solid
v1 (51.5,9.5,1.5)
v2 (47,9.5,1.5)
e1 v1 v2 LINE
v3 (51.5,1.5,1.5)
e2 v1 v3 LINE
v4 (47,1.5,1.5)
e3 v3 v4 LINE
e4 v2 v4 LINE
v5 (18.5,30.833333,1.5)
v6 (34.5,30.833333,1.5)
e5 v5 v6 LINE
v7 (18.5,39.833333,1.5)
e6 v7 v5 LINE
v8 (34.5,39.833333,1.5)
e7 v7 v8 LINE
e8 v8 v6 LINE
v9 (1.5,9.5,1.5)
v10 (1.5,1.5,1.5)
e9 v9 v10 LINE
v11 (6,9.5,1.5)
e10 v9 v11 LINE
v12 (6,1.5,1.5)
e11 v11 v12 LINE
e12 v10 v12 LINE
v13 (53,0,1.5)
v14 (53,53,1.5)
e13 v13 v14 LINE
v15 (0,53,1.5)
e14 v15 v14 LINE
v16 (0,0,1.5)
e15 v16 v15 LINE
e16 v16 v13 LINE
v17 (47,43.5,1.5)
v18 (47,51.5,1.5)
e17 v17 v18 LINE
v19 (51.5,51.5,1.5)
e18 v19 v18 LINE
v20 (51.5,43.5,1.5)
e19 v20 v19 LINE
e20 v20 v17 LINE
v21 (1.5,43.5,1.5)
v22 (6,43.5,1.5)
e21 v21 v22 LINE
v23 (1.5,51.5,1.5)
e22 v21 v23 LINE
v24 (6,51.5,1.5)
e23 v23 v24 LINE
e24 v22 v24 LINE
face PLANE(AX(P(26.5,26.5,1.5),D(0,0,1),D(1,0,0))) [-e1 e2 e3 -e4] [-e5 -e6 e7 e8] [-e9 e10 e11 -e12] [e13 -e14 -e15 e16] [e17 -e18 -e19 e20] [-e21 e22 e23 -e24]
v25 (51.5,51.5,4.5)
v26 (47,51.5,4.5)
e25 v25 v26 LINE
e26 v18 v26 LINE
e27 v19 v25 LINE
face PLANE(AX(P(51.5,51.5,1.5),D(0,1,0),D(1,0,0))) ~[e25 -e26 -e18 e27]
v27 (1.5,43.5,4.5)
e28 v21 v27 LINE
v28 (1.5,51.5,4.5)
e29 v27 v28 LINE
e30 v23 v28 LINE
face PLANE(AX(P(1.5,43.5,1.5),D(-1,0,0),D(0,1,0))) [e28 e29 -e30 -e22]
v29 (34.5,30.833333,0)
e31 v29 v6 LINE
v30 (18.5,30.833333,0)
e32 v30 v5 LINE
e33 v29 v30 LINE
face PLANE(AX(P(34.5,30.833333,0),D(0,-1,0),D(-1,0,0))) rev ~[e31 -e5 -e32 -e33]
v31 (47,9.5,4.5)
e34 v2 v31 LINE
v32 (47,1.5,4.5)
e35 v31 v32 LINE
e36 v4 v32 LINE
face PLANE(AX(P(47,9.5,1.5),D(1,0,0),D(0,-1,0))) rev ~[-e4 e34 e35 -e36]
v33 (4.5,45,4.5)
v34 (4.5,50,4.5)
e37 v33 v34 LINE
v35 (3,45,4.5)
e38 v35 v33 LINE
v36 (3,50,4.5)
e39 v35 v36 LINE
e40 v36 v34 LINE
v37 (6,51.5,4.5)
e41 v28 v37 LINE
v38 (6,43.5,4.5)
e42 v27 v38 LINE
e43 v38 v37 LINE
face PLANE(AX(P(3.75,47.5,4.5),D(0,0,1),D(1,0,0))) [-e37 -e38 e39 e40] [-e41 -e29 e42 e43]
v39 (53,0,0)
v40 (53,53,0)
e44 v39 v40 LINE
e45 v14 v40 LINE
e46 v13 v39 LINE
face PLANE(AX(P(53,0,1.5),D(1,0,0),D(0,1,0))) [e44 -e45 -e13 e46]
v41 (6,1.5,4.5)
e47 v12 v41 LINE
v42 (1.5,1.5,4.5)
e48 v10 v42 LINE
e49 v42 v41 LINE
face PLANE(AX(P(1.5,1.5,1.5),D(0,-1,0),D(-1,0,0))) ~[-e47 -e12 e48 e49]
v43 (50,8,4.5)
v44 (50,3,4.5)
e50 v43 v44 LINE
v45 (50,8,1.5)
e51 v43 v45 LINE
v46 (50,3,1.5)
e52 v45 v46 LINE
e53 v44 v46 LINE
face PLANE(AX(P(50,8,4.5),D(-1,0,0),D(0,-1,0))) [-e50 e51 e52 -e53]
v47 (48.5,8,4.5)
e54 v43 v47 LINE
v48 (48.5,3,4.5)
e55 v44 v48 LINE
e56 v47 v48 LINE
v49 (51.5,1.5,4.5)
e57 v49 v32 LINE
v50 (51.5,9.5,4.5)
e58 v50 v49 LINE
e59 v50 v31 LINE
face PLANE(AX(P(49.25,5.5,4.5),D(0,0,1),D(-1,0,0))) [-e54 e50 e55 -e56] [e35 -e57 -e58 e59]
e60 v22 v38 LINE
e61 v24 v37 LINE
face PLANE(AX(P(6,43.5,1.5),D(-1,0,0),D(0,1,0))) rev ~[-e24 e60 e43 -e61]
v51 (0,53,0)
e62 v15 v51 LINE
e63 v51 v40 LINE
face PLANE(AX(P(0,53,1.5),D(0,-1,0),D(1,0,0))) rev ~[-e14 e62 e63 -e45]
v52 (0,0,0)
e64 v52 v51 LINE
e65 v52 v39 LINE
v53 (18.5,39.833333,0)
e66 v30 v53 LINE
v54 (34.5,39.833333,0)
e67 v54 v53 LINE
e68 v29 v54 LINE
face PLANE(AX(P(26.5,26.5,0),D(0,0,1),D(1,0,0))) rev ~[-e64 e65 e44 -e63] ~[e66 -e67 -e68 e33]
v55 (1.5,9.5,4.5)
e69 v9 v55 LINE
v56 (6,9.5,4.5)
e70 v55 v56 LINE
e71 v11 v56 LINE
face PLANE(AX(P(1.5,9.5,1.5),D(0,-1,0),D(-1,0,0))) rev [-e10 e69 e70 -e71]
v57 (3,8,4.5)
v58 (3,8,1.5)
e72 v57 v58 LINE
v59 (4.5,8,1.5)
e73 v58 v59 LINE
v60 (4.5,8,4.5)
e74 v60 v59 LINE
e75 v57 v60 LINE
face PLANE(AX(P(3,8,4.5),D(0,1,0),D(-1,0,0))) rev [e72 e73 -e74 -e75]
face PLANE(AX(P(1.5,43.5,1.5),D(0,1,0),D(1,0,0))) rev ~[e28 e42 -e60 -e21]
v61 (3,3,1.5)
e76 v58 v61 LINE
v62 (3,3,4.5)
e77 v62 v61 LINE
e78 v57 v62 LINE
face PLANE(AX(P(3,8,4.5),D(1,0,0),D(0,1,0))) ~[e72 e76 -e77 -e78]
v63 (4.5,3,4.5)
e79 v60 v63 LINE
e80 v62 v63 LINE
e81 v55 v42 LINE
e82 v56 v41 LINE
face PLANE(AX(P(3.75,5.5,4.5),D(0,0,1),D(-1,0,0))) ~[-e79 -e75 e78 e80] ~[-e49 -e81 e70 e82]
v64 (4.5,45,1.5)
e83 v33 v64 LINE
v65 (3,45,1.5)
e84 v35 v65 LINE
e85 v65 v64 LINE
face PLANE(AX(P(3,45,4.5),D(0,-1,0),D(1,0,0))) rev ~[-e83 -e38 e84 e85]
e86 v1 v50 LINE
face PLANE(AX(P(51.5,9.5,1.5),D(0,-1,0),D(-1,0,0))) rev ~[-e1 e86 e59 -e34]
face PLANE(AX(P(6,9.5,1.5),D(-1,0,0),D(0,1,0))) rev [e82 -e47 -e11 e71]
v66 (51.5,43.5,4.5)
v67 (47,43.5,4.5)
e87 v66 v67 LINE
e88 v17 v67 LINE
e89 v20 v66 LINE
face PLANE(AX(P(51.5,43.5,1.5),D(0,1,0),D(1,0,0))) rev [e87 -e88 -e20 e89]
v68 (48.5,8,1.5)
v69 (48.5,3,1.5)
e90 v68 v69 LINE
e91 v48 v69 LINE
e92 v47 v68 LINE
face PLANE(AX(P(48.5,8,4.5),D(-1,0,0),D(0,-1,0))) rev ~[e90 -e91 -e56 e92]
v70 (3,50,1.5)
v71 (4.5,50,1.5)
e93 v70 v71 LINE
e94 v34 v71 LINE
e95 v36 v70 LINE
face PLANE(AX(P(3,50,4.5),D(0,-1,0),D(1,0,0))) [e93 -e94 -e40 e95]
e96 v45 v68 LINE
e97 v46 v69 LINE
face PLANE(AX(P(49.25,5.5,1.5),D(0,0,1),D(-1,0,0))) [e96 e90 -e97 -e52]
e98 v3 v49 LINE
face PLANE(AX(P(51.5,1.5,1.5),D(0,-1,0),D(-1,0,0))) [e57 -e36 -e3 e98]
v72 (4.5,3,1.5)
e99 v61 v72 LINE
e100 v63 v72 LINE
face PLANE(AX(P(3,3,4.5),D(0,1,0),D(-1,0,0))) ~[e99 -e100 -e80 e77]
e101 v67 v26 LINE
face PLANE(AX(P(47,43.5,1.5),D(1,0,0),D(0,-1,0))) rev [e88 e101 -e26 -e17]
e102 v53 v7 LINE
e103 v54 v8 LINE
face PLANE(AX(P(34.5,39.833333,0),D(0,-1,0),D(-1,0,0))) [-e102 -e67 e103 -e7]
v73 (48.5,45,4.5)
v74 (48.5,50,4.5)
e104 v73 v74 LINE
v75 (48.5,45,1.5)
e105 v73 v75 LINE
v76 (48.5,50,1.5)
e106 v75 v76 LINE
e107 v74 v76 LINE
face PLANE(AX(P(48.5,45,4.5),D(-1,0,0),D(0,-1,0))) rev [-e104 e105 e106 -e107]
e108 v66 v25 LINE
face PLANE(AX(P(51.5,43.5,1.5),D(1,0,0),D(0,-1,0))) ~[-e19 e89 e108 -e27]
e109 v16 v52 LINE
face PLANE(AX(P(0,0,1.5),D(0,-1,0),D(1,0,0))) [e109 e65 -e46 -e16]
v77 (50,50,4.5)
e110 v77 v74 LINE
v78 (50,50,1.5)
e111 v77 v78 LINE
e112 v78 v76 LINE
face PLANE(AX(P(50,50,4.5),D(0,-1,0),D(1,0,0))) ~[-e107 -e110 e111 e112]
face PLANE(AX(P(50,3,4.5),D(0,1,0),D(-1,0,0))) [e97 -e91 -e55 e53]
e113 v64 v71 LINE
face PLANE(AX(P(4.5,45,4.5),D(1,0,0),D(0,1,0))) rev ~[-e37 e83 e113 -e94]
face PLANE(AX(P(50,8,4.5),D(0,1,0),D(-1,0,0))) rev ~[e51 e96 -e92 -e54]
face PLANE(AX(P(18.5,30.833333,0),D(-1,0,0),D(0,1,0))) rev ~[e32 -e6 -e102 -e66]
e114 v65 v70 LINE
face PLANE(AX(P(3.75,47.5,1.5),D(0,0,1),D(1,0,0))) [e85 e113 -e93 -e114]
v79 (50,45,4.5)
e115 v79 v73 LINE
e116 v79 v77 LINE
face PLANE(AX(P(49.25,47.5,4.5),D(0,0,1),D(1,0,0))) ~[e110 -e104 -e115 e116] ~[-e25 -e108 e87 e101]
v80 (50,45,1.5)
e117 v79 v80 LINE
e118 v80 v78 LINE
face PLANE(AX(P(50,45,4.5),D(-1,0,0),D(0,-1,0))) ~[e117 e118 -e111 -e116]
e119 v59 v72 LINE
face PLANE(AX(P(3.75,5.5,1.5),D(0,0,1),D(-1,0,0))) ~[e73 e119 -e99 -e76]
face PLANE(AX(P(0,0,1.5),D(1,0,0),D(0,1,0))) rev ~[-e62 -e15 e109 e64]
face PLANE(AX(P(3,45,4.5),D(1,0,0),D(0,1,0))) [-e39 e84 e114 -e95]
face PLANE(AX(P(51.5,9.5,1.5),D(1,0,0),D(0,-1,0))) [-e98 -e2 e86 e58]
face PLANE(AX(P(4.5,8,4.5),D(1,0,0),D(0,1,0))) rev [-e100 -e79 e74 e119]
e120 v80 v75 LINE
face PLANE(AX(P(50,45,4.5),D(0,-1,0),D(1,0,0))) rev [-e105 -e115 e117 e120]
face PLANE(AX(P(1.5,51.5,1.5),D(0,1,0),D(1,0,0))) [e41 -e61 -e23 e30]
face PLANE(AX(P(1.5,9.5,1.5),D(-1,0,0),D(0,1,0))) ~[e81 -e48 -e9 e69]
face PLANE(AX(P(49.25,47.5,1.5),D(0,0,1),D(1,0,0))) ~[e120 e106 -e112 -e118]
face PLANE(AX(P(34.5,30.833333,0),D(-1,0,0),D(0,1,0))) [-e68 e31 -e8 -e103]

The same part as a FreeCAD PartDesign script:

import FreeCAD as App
import Part
import Sketcher
from FreeCAD import Vector
Q = App.Units.Quantity


def add_polygon(sketch, points):
    """Adds a closed chain of lines whose ends are joined by coincident constraints."""
    first, n = sketch.GeometryCount, len(points)
    for a, b in zip(points, points[1:] + points[:1]):
        sketch.addGeometry(Part.LineSegment(App.Vector(*a, 0), App.Vector(*b, 0)), False)
    for i in range(n):
        sketch.addConstraint(Sketcher.Constraint("Coincident", first + i, 2, first + (i + 1) % n, 1))

doc = App.newDocument("Part")
body = doc.addObject("PartDesign::Body", "Body")

sketch1 = body.newObject("Sketcher::SketchObject", "Sketch")
sketch1.AttachmentSupport = (doc.getObject("XY_Plane"), [""])
sketch1.MapMode = "FlatFace"
sketch1.AttachmentOffset = App.Placement(Vector(0, 0, 1.5), App.Rotation())
add_polygon(sketch1, [(0, 53), (0, 0), (53, 0), (53, 53)])
sketch1.addConstraint([
    Sketcher.Constraint("Vertical", 0),
    Sketcher.Constraint("Horizontal", 1),
    Sketcher.Constraint("Vertical", 2),
    Sketcher.Constraint("Horizontal", 3),
    Sketcher.Constraint("Coincident", 0, 2, -1, 1),
    Sketcher.Constraint("Equal", 3, 0),
    Sketcher.Constraint("DistanceX", 1, 1, 1, 2, Q("53 mm")),
])
pad1 = body.newObject("PartDesign::Pad", "Pad")
pad1.Profile = sketch1
pad1.Length = 1.5
pad1.Reversed = True

sketch2 = body.newObject("Sketcher::SketchObject", "Sketch001")
sketch2.AttachmentSupport = (doc.getObject("XY_Plane"), [""])
sketch2.MapMode = "FlatFace"
add_polygon(sketch2, [(34, 40), (34, 31), (18, 31), (18, 40)])
sketch2.addConstraint([
    Sketcher.Constraint("Vertical", 0),
    Sketcher.Constraint("Horizontal", 1),
    Sketcher.Constraint("Vertical", 2),
    Sketcher.Constraint("Horizontal", 3),
    Sketcher.Constraint("DistanceX", 1, 2, 1, 1, Q("16 mm")),
    Sketcher.Constraint("DistanceY", 0, 2, 0, 1, Q("9 mm")),
    Sketcher.Constraint("DistanceX", -1, 1, 0, 2, Q("34.5 mm")),
    Sketcher.Constraint("DistanceY", -1, 1, 0, 2, Q("30.833333 mm")),
])
pocket1 = body.newObject("PartDesign::Pocket", "Pocket")
pocket1.Profile = sketch2
pocket1.Type = "ThroughAll"
pocket1.Reversed = True

sketch3 = body.newObject("Sketcher::SketchObject", "Sketch002")
sketch3.AttachmentSupport = (doc.getObject("XY_Plane"), [""])
sketch3.MapMode = "FlatFace"
sketch3.AttachmentOffset = App.Placement(Vector(0, 0, 1.5), App.Rotation())
add_polygon(sketch3, [(1.5, 51.5), (1.5, 43.5), (6, 43.5), (6, 51.5)])
sketch3.addConstraint([
    Sketcher.Constraint("Vertical", 0),
    Sketcher.Constraint("Horizontal", 1),
    Sketcher.Constraint("Vertical", 2),
    Sketcher.Constraint("Horizontal", 3),
    Sketcher.Constraint("DistanceY", 0, 2, 0, 1, Q("8 mm")),
    Sketcher.Constraint("DistanceX", 1, 1, 1, 2, Q("4.5 mm")),
    Sketcher.Constraint("DistanceX", -1, 1, 1, 2, Q("6 mm")),
    Sketcher.Constraint("DistanceY", -1, 1, 0, 2, Q("43.5 mm")),
])
pad2 = body.newObject("PartDesign::Pad", "Pad001")
pad2.Profile = sketch3
pad2.Length = 3

sketch4 = body.newObject("Sketcher::SketchObject", "Sketch003")
sketch4.AttachmentSupport = (doc.getObject("XY_Plane"), [""])
sketch4.MapMode = "FlatFace"
sketch4.AttachmentOffset = App.Placement(Vector(0, 0, 4.5), App.Rotation())
add_polygon(sketch4, [(3, 50), (3, 45), (4.5, 45), (4.5, 50)])
sketch4.addConstraint([
    Sketcher.Constraint("Vertical", 0),
    Sketcher.Constraint("Horizontal", 1),
    Sketcher.Constraint("Vertical", 2),
    Sketcher.Constraint("Horizontal", 3),
    Sketcher.Constraint("DistanceY", 0, 2, 0, 1, Q("5 mm")),
    Sketcher.Constraint("DistanceX", 1, 1, 1, 2, Q("1.5 mm")),
    Sketcher.Constraint("DistanceX", -1, 1, 0, 2, Q("3 mm")),
    Sketcher.Constraint("DistanceY", -1, 1, 0, 2, Q("45 mm")),
])
pocket2 = body.newObject("PartDesign::Pocket", "Pocket001")
pocket2.Profile = sketch4
pocket2.Length = 3
doc.recompute()

datumplane = body.newObject("PartDesign::Plane", "DatumPlane")
datumplane.AttachmentSupport = (doc.getObject("YZ_Plane"), [""])
datumplane.MapMode = "FlatFace"
datumplane.AttachmentOffset = App.Placement(Vector(0, 0, 26.5), App.Rotation())
mirrored = body.newObject("PartDesign::Mirrored", "Mirrored")
mirrored.Originals = [pad2, pocket2]
mirrored.MirrorPlane = (datumplane, [""])
body.Tip = mirrored
doc.recompute()

datumplane2 = body.newObject("PartDesign::Plane", "DatumPlane001")
datumplane2.AttachmentSupport = (doc.getObject("XZ_Plane"), [""])
datumplane2.MapMode = "FlatFace"
datumplane2.AttachmentOffset = App.Placement(Vector(0, 0, -26.5), App.Rotation())
mirrored2 = body.newObject("PartDesign::Mirrored", "Mirrored001")
mirrored2.Originals = [pad2, pocket2]
mirrored2.MirrorPlane = (datumplane2, [""])
body.Tip = mirrored2

sketch5 = body.newObject("Sketcher::SketchObject", "Sketch004")
sketch5.AttachmentSupport = (doc.getObject("XY_Plane"), [""])
sketch5.MapMode = "FlatFace"
sketch5.AttachmentOffset = App.Placement(Vector(0, 0, 1.5), App.Rotation())
add_polygon(sketch5, [(51.5, 1.5), (51.5, 9.5), (47, 9.5), (47, 1.5)])
sketch5.addConstraint([
    Sketcher.Constraint("Vertical", 0),
    Sketcher.Constraint("Horizontal", 1),
    Sketcher.Constraint("Vertical", 2),
    Sketcher.Constraint("Horizontal", 3),
    Sketcher.Constraint("DistanceY", 0, 1, 0, 2, Q("8 mm")),
    Sketcher.Constraint("DistanceX", 1, 2, 1, 1, Q("4.5 mm")),
    Sketcher.Constraint("DistanceX", -1, 1, 1, 2, Q("47 mm")),
    Sketcher.Constraint("DistanceY", -1, 1, 0, 2, Q("9.5 mm")),
])
pad3 = body.newObject("PartDesign::Pad", "Pad002")
pad3.Profile = sketch5
pad3.Length = 3

sketch6 = body.newObject("Sketcher::SketchObject", "Sketch005")
sketch6.AttachmentSupport = (doc.getObject("XY_Plane"), [""])
sketch6.MapMode = "FlatFace"
sketch6.AttachmentOffset = App.Placement(Vector(0, 0, 4.5), App.Rotation())
add_polygon(sketch6, [(50, 3), (50, 8), (48.5, 8), (48.5, 3)])
sketch6.addConstraint([
    Sketcher.Constraint("Vertical", 0),
    Sketcher.Constraint("Horizontal", 1),
    Sketcher.Constraint("Vertical", 2),
    Sketcher.Constraint("Horizontal", 3),
    Sketcher.Constraint("DistanceY", 0, 1, 0, 2, Q("5 mm")),
    Sketcher.Constraint("DistanceX", 1, 2, 1, 1, Q("1.5 mm")),
    Sketcher.Constraint("DistanceX", -1, 1, 0, 2, Q("50 mm")),
    Sketcher.Constraint("DistanceY", -1, 1, 0, 2, Q("8 mm")),
])
pocket3 = body.newObject("PartDesign::Pocket", "Pocket002")
pocket3.Profile = sketch6
pocket3.Length = 3

doc.recompute()
